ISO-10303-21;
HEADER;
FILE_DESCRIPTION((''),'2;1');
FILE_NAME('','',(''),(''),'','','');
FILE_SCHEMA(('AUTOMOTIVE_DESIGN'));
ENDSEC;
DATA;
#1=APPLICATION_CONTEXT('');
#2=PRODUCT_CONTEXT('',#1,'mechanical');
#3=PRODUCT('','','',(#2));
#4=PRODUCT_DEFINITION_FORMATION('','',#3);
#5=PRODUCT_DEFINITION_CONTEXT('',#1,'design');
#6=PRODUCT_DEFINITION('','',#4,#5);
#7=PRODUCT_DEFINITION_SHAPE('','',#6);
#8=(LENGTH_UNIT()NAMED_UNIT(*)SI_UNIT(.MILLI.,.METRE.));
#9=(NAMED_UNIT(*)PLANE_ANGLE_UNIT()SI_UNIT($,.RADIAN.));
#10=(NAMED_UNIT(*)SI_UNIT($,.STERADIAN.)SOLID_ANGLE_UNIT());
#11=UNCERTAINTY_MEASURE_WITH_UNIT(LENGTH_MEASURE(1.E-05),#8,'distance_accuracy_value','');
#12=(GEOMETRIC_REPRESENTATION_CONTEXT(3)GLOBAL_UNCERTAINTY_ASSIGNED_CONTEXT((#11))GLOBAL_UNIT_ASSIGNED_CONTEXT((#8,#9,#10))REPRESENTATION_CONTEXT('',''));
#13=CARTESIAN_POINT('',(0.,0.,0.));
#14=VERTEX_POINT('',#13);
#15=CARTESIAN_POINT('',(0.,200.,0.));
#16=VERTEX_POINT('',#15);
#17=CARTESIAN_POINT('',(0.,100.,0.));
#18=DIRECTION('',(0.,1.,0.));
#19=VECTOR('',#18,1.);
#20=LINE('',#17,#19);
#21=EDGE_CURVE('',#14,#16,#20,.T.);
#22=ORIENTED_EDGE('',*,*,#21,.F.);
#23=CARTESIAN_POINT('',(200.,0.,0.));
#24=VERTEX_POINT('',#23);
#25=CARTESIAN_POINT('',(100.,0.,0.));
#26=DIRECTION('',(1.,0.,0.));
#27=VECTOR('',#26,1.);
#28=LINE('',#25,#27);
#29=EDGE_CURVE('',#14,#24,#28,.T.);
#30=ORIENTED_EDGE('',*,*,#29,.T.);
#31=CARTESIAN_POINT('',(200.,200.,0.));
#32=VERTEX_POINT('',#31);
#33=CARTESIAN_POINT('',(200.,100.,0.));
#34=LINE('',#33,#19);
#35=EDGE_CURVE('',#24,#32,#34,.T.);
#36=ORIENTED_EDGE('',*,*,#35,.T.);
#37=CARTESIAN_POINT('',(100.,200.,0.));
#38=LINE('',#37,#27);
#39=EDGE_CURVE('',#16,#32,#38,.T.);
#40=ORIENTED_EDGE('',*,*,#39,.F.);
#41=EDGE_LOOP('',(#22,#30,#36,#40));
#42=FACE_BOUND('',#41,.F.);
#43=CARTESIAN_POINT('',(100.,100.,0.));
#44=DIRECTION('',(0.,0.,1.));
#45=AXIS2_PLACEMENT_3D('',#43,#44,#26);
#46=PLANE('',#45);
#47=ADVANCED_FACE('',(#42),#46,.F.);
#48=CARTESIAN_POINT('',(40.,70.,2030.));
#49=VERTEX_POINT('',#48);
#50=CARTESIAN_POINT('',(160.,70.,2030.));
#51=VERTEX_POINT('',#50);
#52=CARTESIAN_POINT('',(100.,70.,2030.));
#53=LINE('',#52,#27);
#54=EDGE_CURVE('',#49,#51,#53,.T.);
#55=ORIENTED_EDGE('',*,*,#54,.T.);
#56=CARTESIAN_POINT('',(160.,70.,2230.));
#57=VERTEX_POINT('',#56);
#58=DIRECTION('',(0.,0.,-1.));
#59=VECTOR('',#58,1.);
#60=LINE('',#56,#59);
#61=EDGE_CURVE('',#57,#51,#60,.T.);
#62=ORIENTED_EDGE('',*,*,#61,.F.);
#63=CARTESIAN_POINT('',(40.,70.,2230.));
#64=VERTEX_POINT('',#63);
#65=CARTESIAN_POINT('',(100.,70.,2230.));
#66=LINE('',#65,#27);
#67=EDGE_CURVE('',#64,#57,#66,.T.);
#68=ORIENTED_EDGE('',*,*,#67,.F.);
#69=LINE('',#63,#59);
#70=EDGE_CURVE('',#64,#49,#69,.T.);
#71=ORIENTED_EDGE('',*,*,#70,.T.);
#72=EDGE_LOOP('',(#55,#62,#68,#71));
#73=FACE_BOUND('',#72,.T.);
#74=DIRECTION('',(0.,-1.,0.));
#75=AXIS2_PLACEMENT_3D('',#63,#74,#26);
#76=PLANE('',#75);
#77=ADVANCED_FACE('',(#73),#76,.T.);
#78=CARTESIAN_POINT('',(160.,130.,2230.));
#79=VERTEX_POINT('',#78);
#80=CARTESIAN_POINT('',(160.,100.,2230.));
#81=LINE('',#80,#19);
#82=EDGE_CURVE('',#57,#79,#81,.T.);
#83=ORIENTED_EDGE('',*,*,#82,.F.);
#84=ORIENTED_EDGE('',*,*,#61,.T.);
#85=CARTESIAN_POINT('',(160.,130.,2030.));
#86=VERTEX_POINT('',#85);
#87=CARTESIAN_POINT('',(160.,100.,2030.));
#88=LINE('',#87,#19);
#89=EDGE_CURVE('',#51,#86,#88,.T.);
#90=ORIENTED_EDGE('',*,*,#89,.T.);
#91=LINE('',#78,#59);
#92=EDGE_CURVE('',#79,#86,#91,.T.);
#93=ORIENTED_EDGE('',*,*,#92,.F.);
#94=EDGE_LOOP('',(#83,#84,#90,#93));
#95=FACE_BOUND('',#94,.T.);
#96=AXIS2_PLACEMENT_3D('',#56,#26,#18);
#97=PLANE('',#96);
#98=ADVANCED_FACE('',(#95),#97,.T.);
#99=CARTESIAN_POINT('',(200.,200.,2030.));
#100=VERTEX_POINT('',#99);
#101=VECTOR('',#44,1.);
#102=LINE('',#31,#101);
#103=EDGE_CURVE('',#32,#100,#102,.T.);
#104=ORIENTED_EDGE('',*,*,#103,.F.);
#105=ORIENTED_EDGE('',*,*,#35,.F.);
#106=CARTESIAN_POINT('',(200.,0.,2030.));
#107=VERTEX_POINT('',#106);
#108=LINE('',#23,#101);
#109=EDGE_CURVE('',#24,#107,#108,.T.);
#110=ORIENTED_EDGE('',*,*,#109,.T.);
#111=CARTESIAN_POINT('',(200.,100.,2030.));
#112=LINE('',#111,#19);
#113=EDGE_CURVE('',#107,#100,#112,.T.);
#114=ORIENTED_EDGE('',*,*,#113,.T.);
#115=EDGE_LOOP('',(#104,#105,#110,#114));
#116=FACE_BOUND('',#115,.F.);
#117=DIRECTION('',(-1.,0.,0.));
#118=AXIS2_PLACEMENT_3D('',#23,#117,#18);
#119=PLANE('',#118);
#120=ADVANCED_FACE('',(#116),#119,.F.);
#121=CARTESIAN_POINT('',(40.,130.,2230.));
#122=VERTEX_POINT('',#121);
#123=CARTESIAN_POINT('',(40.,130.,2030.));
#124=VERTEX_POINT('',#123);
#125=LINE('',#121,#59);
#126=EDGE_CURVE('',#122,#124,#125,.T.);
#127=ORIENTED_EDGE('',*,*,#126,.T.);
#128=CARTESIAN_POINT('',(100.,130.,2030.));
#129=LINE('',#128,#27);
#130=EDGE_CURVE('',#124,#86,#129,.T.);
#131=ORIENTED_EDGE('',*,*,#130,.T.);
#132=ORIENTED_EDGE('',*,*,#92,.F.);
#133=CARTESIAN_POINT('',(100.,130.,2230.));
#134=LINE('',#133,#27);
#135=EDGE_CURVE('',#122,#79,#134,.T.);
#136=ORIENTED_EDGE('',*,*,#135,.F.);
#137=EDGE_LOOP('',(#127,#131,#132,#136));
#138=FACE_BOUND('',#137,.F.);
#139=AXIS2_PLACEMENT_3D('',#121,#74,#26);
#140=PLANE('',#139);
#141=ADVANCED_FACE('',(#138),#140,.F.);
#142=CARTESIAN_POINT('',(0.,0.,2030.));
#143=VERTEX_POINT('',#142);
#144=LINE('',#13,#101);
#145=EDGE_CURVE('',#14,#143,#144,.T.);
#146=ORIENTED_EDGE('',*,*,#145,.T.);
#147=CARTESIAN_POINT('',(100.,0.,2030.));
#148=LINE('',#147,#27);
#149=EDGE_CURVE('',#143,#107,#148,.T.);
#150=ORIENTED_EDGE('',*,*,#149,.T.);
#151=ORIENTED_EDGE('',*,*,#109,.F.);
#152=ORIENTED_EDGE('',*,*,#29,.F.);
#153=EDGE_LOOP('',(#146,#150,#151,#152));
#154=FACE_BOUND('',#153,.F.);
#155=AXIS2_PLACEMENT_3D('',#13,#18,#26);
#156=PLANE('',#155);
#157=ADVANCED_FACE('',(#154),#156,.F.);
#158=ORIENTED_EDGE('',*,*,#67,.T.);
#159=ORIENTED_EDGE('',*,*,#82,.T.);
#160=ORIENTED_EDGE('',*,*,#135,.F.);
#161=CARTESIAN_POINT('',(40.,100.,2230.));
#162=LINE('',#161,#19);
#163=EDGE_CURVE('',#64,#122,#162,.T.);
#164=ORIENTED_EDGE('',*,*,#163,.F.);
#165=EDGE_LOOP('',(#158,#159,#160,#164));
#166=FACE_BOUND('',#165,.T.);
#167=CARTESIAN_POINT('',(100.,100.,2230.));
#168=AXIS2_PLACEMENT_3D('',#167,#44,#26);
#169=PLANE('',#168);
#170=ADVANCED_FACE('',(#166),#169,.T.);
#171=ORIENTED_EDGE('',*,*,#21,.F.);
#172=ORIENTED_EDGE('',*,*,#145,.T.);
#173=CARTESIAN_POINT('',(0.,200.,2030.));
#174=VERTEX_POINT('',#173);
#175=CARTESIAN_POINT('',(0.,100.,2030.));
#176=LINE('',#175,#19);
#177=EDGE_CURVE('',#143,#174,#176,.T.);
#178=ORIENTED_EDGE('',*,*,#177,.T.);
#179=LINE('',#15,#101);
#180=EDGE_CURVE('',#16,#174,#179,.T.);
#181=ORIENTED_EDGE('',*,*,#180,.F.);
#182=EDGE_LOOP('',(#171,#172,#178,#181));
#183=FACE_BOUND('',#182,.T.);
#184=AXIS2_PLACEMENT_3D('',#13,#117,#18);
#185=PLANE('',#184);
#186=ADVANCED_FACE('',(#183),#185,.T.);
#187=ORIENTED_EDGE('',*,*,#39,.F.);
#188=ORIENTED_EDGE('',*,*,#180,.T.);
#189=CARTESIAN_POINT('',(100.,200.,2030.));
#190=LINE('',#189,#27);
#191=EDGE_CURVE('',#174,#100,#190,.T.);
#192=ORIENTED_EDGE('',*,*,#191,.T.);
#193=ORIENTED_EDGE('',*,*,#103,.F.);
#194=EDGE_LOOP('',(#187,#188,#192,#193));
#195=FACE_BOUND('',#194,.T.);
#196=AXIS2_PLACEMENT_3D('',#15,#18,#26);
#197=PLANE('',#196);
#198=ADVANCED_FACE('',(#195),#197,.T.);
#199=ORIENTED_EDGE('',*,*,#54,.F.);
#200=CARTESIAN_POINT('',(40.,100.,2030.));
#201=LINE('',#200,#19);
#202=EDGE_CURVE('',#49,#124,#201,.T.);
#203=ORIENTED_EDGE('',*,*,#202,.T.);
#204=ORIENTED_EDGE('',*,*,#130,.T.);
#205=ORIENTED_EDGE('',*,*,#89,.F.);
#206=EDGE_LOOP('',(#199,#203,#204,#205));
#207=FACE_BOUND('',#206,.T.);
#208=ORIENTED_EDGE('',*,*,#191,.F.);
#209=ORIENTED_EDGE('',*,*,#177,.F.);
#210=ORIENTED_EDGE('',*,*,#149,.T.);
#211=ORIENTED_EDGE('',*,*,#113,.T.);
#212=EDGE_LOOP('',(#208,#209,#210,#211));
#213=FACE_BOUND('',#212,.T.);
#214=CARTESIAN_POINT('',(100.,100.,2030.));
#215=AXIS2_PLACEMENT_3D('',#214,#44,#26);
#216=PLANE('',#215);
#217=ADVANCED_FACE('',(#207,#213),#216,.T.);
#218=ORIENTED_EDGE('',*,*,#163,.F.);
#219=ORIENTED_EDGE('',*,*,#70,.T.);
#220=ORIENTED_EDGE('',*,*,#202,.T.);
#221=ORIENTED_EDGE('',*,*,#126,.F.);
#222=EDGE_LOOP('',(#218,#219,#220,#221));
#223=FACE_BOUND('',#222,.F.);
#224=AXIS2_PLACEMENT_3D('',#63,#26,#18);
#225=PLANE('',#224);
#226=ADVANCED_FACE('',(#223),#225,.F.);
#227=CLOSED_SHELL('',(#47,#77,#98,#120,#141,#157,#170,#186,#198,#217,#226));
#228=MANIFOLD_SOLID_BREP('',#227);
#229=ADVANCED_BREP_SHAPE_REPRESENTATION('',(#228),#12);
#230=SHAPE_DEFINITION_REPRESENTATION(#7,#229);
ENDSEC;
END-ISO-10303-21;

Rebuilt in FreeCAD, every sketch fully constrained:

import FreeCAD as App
import Part
import Sketcher

doc = App.newDocument("Part")
body = doc.addObject("PartDesign::Body", "Body")

# Sketch on XY plane
sketch1 = body.newObject("Sketcher::SketchObject", "Sketch")
sketch1.AttachmentSupport = (doc.getObject("XY_Plane"), [""])
sketch1.MapMode = "FlatFace"
sketch1.addGeometry([
    Part.LineSegment(App.Vector(0, 200, 0), App.Vector(0, 0, 0)),
    Part.LineSegment(App.Vector(0, 0, 0), App.Vector(200, 0, 0)),
    Part.LineSegment(App.Vector(200, 0, 0), App.Vector(200, 200, 0)),
    Part.LineSegment(App.Vector(200, 200, 0), App.Vector(0, 200, 0)),
], False)
sketch1.addConstraint([
    Sketcher.Constraint("Coincident", 0, 2, 1, 1),
    Sketcher.Constraint("Coincident", 1, 2, 2, 1),
    Sketcher.Constraint("Coincident", 2, 2, 3, 1),
    Sketcher.Constraint("Coincident", 3, 2, 0, 1),
    Sketcher.Constraint("Vertical", 0),
    Sketcher.Constraint("Horizontal", 1),
    Sketcher.Constraint("Vertical", 2),
    Sketcher.Constraint("Horizontal", 3),
    Sketcher.Constraint("Coincident", 0, 2, -1, 1),
    Sketcher.Constraint("Equal", 3, 0),
    Sketcher.Constraint("DistanceX", 1, 1, 1, 2, 200.0),
])
pad1 = body.newObject("PartDesign::Pad", "Pad")
pad1.Profile = sketch1
pad1.Length = 2230

# Sketch on XY plane
sketch2 = body.newObject("Sketcher::SketchObject", "Sketch001")
sketch2.AttachmentSupport = (doc.getObject("XY_Plane"), [""])
sketch2.MapMode = "FlatFace"
sketch2.AttachmentOffset = App.Placement(App.Vector(0, 0, 2230), App.Rotation())
sketch2.addGeometry([
    Part.LineSegment(App.Vector(0, 200, 0), App.Vector(0, 0, 0)),  # 0
    Part.LineSegment(App.Vector(0, 0, 0), App.Vector(200, 0, 0)),  # 1
    Part.LineSegment(App.Vector(200, 0, 0), App.Vector(200, 200, 0)),  # 2
    Part.LineSegment(App.Vector(200, 200, 0), App.Vector(0, 200, 0)),  # 3
    Part.LineSegment(App.Vector(160, 70, 0), App.Vector(40, 70, 0)),  # 4
    Part.LineSegment(App.Vector(40, 70, 0), App.Vector(40, 130, 0)),  # 5
    Part.LineSegment(App.Vector(40, 130, 0), App.Vector(160, 130, 0)),  # 6
    Part.LineSegment(App.Vector(160, 130, 0), App.Vector(160, 70, 0)),  # 7
], False)
sketch2.addConstraint([
    Sketcher.Constraint("Coincident", 0, 2, 1, 1),
    Sketcher.Constraint("Coincident", 1, 2, 2, 1),
    Sketcher.Constraint("Coincident", 2, 2, 3, 1),
    Sketcher.Constraint("Coincident", 3, 2, 0, 1),
    Sketcher.Constraint("Coincident", 4, 2, 5, 1),
    Sketcher.Constraint("Coincident", 5, 2, 6, 1),
    Sketcher.Constraint("Coincident", 6, 2, 7, 1),
    Sketcher.Constraint("Coincident", 7, 2, 4, 1),
    Sketcher.Constraint("Vertical", 0),
    Sketcher.Constraint("Horizontal", 1),
    Sketcher.Constraint("Vertical", 2),
    Sketcher.Constraint("Horizontal", 3),
    Sketcher.Constraint("Horizontal", 4),
    Sketcher.Constraint("Vertical", 5),
    Sketcher.Constraint("Horizontal", 6),
    Sketcher.Constraint("Vertical", 7),
    Sketcher.Constraint("Coincident", 0, 2, -1, 1),
    Sketcher.Constraint("Equal", 3, 0),
    Sketcher.Constraint("DistanceX", 1, 1, 1, 2, 200.0),
    Sketcher.Constraint("DistanceX", 4, 2, 4, 1, 120.0),
    Sketcher.Constraint("DistanceY", 5, 1, 5, 2, 60.0),
    Sketcher.Constraint("DistanceX", -1, 1, 4, 2, 40.0),
    Sketcher.Constraint("DistanceY", -1, 1, 4, 2, 70.0),
])
pocket1 = body.newObject("PartDesign::Pocket", "Pocket")
pocket1.Profile = sketch2
pocket1.Length = 200

doc.recompute()
